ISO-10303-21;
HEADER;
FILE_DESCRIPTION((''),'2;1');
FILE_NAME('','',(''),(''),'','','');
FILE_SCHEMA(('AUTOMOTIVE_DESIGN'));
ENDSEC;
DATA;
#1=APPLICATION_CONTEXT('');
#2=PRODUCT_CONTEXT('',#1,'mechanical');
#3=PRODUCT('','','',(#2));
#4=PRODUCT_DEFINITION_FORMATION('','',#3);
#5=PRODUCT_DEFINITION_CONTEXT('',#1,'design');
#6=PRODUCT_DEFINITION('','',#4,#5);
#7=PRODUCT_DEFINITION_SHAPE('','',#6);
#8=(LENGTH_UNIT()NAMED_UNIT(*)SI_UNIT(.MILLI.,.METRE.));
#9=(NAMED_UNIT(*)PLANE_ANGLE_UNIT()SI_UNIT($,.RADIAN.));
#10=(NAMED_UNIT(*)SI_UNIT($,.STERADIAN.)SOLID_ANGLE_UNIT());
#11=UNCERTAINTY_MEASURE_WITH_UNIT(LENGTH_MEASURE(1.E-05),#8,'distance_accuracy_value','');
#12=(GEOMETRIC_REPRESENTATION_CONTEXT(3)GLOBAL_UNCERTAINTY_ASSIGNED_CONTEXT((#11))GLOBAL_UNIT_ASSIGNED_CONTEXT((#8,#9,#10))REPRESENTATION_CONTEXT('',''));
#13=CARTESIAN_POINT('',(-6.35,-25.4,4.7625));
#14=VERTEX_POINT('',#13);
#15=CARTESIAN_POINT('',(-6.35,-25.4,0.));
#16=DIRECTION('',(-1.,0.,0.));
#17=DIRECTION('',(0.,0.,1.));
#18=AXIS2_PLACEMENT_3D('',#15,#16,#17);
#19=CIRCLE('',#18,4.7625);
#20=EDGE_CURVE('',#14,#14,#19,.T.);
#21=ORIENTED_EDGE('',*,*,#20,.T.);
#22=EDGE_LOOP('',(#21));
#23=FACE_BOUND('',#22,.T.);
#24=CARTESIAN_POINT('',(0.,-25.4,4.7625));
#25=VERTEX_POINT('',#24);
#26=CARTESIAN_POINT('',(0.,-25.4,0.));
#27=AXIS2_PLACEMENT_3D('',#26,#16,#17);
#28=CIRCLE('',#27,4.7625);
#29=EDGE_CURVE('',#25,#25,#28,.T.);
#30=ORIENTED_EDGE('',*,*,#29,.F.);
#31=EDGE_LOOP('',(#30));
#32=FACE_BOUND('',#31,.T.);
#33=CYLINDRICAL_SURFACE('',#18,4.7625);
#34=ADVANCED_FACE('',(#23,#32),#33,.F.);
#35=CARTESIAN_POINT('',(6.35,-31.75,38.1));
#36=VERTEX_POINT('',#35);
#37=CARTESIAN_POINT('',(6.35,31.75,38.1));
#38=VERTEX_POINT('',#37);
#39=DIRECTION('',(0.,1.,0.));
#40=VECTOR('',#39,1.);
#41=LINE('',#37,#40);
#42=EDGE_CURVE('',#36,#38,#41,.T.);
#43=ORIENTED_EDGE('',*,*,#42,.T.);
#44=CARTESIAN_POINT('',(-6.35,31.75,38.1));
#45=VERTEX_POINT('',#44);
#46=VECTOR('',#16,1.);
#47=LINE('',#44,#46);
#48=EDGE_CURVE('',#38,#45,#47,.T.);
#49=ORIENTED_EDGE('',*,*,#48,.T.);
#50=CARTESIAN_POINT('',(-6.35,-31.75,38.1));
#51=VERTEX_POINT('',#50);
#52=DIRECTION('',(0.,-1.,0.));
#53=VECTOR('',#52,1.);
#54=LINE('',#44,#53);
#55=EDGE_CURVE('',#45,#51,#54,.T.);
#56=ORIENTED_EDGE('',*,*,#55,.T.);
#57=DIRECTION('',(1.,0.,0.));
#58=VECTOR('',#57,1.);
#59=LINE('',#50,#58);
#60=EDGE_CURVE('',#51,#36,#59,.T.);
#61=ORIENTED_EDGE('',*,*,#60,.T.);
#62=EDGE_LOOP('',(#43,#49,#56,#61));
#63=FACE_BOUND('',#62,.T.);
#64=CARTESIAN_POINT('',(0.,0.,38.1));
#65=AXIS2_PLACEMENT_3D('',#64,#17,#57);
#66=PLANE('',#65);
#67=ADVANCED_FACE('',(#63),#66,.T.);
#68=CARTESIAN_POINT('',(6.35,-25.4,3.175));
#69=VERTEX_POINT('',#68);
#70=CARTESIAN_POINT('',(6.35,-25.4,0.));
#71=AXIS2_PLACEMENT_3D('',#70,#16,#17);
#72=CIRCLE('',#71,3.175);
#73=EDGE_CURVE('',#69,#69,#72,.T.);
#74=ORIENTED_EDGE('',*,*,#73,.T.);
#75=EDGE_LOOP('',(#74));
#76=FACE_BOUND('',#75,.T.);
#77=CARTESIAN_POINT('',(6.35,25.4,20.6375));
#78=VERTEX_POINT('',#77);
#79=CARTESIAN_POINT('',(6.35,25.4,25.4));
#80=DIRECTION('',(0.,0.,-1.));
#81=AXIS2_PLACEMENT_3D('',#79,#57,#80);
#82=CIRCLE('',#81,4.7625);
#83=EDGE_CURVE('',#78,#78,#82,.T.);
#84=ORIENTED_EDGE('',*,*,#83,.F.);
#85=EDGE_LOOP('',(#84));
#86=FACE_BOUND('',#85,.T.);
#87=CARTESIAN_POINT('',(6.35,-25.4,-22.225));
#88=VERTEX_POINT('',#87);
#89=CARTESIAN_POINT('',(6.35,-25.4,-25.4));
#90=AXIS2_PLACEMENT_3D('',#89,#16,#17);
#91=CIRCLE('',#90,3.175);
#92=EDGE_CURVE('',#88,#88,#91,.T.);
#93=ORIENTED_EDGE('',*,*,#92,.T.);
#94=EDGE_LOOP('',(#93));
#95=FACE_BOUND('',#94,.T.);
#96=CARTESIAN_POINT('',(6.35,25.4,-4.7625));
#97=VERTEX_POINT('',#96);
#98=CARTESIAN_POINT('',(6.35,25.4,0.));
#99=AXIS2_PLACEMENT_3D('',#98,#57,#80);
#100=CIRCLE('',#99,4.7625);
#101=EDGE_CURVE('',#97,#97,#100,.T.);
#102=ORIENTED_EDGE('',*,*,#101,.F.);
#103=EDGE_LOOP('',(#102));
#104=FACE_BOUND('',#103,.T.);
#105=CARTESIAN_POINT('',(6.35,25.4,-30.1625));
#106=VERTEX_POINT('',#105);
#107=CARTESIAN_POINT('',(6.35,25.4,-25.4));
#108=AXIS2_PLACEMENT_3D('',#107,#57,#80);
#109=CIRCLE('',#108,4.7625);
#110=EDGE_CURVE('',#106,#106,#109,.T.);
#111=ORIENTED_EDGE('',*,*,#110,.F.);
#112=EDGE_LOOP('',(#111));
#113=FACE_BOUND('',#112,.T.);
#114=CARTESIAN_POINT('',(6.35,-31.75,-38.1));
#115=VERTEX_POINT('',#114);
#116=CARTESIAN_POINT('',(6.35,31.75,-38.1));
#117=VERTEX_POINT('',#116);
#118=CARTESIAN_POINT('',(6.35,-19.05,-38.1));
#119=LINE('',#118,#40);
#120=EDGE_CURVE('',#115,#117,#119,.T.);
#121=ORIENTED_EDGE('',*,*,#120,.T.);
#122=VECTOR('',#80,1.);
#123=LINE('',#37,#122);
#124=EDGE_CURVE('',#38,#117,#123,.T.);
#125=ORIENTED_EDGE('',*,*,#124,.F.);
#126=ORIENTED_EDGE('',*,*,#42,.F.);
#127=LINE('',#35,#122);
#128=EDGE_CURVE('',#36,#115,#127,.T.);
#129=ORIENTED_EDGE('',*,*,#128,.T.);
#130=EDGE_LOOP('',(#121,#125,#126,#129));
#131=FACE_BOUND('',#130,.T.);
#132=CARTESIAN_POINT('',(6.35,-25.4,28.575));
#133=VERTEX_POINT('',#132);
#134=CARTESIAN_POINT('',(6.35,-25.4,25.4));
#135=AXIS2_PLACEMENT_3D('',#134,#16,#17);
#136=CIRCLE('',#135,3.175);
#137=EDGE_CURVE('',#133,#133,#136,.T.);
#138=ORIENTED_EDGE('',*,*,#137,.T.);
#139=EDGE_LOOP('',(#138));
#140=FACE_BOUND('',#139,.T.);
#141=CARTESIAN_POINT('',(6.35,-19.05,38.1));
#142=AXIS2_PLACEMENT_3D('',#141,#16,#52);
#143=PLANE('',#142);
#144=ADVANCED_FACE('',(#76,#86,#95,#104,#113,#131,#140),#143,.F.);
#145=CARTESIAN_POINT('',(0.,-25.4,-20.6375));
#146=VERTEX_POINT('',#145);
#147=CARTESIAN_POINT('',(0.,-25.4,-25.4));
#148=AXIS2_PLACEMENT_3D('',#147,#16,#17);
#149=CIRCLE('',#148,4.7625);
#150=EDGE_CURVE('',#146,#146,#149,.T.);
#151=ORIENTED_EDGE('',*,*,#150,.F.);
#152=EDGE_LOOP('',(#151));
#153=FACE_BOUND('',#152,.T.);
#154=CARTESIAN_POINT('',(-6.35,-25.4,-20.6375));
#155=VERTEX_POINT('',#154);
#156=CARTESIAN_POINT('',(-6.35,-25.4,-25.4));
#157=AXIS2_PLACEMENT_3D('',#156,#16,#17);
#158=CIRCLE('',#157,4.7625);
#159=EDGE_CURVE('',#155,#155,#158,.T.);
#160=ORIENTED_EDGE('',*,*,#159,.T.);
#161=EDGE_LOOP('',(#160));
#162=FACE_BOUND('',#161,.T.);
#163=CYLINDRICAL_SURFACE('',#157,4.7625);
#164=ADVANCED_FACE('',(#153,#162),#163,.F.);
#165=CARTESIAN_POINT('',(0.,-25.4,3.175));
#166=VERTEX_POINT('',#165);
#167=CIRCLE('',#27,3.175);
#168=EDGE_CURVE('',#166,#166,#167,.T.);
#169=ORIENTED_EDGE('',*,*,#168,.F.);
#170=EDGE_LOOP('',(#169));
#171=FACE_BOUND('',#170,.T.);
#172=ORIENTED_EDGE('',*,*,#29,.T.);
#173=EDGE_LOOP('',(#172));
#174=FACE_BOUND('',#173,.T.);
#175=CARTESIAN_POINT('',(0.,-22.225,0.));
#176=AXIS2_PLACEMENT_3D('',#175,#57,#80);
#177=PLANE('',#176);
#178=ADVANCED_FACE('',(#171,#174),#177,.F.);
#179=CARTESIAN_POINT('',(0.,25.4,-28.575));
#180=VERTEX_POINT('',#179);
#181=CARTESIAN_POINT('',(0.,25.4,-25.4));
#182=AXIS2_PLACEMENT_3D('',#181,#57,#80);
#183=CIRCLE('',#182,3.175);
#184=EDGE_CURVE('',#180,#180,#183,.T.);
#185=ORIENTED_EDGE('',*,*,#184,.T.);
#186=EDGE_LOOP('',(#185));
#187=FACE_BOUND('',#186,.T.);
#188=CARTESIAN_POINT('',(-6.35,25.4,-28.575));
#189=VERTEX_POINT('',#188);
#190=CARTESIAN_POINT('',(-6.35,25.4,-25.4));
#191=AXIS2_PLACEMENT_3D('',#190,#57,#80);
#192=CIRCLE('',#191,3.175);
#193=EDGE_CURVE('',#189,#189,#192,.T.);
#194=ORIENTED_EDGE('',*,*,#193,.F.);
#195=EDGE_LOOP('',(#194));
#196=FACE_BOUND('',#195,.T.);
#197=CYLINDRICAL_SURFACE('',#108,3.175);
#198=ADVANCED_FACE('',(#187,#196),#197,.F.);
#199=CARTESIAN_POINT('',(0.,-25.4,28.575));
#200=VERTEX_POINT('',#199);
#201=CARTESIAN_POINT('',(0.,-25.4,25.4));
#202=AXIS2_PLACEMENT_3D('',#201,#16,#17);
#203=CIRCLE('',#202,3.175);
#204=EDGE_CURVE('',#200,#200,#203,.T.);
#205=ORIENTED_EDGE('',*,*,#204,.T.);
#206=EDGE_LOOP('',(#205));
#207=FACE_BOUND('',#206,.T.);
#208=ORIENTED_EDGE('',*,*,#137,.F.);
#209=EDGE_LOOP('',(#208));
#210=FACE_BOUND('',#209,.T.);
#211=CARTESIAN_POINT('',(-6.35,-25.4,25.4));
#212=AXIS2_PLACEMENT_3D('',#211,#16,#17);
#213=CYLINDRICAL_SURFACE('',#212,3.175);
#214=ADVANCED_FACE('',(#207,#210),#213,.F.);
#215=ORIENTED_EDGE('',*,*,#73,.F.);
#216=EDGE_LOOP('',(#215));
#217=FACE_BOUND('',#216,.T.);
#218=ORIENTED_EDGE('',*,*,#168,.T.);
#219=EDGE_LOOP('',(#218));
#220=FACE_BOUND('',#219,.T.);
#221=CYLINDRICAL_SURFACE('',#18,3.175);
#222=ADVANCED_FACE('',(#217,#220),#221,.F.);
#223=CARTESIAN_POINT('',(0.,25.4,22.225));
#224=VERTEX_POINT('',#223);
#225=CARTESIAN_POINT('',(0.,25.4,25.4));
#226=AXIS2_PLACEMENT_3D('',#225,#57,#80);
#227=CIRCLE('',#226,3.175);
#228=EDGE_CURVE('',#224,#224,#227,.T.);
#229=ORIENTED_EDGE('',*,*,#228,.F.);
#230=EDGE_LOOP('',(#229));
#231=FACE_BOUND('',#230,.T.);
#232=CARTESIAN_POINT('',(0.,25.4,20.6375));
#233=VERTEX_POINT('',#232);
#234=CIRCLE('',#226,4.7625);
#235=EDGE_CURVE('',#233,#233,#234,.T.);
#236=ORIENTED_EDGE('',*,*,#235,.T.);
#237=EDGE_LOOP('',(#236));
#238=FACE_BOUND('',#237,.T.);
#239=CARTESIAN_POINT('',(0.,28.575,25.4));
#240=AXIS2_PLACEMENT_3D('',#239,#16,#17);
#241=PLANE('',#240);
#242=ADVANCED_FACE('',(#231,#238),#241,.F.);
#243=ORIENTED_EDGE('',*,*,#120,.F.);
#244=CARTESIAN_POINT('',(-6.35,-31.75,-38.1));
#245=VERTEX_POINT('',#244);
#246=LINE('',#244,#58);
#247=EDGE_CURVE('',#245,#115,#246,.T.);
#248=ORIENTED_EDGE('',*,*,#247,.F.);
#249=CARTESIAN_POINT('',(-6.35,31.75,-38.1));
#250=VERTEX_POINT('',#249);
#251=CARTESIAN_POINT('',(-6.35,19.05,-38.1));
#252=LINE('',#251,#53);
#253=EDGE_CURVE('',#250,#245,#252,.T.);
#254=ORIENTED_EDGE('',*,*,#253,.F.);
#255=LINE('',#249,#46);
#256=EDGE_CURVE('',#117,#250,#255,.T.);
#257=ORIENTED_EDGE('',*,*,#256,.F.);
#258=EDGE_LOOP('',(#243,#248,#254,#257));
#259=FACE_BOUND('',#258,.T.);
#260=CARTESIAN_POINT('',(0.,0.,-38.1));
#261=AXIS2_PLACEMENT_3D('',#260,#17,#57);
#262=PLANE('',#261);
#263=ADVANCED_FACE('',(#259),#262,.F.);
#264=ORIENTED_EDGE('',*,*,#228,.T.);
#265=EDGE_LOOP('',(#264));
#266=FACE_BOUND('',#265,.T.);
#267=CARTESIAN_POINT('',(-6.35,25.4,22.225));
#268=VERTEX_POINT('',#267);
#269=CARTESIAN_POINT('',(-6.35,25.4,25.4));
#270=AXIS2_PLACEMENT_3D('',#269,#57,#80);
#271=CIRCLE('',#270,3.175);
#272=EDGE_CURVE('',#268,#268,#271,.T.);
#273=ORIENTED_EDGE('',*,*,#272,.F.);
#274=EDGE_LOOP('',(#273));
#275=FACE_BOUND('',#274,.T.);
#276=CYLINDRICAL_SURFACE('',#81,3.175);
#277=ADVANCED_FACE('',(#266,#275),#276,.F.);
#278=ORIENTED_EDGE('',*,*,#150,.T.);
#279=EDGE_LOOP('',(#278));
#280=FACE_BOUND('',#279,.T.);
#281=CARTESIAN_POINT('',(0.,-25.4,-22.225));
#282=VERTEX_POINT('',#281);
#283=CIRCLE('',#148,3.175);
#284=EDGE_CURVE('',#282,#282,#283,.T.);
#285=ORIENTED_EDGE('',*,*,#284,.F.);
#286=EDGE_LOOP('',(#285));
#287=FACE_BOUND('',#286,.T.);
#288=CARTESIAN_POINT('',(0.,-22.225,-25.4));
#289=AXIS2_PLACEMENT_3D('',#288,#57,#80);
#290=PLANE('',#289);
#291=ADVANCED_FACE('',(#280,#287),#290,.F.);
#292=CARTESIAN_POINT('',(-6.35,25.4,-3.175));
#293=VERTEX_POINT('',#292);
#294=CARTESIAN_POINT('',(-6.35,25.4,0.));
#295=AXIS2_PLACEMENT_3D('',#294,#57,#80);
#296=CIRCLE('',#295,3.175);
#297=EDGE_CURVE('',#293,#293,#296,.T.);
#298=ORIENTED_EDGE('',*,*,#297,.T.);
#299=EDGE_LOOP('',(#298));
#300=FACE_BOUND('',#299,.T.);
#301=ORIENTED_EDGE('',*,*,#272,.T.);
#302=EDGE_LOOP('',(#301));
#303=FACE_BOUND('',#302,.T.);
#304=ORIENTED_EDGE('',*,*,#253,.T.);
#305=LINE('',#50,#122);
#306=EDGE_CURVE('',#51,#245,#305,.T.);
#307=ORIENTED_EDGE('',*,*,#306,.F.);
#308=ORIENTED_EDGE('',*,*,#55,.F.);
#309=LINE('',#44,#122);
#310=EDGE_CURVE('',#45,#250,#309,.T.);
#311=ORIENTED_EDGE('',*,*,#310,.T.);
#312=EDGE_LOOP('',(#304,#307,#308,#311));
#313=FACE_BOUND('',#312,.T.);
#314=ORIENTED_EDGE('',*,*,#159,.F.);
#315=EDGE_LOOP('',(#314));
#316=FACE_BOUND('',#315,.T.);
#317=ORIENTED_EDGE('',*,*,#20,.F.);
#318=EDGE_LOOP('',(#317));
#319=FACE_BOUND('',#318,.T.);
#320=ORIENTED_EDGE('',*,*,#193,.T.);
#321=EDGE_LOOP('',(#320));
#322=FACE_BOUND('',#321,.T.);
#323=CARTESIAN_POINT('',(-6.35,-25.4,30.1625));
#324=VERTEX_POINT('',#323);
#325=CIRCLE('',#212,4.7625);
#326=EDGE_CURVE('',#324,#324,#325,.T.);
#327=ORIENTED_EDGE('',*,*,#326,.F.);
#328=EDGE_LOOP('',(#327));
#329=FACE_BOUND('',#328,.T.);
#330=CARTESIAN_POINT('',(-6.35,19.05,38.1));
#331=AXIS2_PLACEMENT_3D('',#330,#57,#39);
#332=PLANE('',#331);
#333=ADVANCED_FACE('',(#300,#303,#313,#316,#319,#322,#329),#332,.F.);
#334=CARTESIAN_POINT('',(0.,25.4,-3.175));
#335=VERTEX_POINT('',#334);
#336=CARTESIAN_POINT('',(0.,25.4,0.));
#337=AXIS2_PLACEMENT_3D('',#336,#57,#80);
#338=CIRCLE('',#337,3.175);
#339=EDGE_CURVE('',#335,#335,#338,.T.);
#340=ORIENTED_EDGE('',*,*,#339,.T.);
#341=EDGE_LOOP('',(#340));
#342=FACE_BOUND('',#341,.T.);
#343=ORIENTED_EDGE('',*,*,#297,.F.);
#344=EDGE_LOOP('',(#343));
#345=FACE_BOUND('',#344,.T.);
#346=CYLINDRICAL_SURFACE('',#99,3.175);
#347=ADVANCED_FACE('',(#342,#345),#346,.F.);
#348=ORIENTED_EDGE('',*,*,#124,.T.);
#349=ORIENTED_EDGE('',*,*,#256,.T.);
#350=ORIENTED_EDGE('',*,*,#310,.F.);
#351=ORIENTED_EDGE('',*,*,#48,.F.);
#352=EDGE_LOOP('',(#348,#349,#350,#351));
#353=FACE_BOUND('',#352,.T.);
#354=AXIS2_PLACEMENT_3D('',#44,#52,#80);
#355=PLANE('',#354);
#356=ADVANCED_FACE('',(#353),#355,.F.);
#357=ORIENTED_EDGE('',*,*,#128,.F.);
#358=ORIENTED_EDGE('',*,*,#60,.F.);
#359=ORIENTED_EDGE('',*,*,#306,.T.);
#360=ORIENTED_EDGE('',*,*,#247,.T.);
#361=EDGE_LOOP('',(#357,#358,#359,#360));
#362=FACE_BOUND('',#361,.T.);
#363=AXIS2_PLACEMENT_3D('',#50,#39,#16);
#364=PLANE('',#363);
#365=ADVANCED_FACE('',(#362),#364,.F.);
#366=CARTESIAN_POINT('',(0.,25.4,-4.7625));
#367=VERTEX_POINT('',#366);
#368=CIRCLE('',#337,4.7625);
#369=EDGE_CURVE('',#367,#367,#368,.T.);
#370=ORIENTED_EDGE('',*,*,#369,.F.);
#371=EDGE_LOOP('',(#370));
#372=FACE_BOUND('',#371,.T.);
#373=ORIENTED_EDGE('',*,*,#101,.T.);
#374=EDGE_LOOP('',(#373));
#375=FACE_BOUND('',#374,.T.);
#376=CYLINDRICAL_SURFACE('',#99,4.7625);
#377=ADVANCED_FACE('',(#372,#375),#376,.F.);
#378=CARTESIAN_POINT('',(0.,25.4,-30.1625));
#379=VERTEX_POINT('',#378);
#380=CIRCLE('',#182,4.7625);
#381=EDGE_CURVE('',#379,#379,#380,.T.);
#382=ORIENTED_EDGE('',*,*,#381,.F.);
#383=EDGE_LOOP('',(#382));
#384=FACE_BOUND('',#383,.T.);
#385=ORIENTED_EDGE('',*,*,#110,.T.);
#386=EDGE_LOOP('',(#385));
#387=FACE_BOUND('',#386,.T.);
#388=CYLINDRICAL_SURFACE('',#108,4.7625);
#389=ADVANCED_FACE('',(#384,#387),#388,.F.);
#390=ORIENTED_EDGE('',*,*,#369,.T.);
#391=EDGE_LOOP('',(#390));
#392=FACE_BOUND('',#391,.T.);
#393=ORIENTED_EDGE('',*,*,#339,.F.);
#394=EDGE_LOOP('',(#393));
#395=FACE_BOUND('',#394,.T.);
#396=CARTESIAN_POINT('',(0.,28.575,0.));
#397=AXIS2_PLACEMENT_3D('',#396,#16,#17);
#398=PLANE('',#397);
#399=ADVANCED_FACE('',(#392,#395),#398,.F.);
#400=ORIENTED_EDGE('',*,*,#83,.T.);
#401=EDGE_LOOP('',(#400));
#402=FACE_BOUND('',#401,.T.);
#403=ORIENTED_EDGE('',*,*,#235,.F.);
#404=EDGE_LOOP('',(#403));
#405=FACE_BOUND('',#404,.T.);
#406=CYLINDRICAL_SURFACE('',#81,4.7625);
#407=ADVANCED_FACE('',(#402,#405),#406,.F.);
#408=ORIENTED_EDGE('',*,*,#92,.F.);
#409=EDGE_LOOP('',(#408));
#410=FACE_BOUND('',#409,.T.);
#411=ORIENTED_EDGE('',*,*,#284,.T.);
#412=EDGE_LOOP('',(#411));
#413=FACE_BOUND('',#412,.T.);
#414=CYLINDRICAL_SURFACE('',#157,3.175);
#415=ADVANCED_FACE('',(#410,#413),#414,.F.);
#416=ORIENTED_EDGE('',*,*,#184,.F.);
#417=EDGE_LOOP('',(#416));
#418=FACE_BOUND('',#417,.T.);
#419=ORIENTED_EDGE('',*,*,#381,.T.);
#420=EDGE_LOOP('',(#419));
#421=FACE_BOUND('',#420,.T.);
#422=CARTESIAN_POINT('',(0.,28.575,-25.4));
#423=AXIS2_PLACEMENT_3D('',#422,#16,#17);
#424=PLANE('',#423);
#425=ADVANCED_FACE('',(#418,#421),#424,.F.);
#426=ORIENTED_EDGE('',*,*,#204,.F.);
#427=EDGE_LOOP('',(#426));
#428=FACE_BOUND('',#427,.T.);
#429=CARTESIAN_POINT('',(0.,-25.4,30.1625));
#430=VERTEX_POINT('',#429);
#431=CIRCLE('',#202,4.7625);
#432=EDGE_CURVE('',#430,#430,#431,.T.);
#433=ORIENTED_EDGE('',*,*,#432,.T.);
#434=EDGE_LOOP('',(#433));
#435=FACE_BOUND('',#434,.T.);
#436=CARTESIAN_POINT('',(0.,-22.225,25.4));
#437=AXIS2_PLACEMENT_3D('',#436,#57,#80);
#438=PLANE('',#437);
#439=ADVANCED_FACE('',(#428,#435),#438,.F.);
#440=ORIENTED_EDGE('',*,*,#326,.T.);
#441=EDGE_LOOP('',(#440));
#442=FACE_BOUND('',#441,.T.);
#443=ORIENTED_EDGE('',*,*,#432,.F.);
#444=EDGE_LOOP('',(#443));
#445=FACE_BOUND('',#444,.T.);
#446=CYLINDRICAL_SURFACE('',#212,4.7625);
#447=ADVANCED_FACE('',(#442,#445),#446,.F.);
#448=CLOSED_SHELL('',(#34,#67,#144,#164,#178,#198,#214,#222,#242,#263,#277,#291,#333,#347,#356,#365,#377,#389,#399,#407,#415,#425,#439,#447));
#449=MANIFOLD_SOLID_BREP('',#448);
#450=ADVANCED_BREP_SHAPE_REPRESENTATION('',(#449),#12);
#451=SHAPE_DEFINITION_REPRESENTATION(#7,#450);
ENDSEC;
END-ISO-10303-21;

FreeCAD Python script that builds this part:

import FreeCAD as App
import Part
import Sketcher

V = App.Vector
Q = App.Units.Quantity

doc = App.newDocument("Part")
body = doc.addObject("PartDesign::Body", "Body")

# Sketch on XY plane
sketch1 = doc.addObject("Sketcher::SketchObject", "Sketch")
body.addObject(sketch1)
sketch1.AttachmentSupport = (doc.XY_Plane, [""])
sketch1.MapMode = "FlatFace"
sketch1.addGeometry([
    Part.LineSegment(V(6, 32, 0), V(-6, 32, 0)),
    Part.LineSegment(V(-6, 32, 0), V(-6, -32, 0)),
    Part.LineSegment(V(-6, -32, 0), V(6, -32, 0)),
    Part.LineSegment(V(6, -32, 0), V(6, 32, 0)),
], False)
sketch1.addConstraint([
    Sketcher.Constraint("Coincident", 0, 2, 1, 1),
    Sketcher.Constraint("Coincident", 1, 2, 2, 1),
    Sketcher.Constraint("Coincident", 2, 2, 3, 1),
    Sketcher.Constraint("Coincident", 3, 2, 0, 1),
    Sketcher.Constraint("Horizontal", 0),
    Sketcher.Constraint("Vertical", 1),
    Sketcher.Constraint("Horizontal", 2),
    Sketcher.Constraint("Vertical", 3),
    Sketcher.Constraint("Symmetric", 0, 2, 2, 2, -1, 1),
    Sketcher.Constraint("DistanceX", 0, 2, 0, 1, Q("0.5 in")),
    Sketcher.Constraint("DistanceY", 1, 2, 1, 1, Q("2.5 in")),
])
pad1 = doc.addObject("PartDesign::Pad", "Pad")
body.addObject(pad1)
pad1.Profile = sketch1
pad1.Length = Q("3 in")
pad1.Midplane = True

# Sketch on YZ plane
sketch2 = doc.addObject("Sketcher::SketchObject", "Sketch001")
body.addObject(sketch2)
sketch2.AttachmentSupport = (doc.YZ_Plane, [""])
sketch2.MapMode = "FlatFace"
sketch2.AttachmentOffset = App.Placement(V(0, 0, -0.25 * 25.4), App.Rotation())
sketch2.addGeometry([
    Part.Circle(V(-25.4, -25.4, 0), V(0, 0, 1), 3.2),
    Part.Circle(V(-25.4, 0, 0), V(0, 0, 1), 3.2),
    Part.Circle(V(-25.4, 25.4, 0), V(0, 0, 1), 3.2),
], False)
sketch2.addConstraint([
    Sketcher.Constraint("Equal", 0, 1),
    Sketcher.Constraint("Equal", 1, 2),
    Sketcher.Constraint("Symmetric", 0, 3, 2, 3, -1),
    Sketcher.Constraint("PointOnObject", 1, 3, -1),
    Sketcher.Constraint("Vertical", 0, 3, 1, 3),
    Sketcher.Constraint("Diameter", 0, Q("0.25 in")),
    Sketcher.Constraint("DistanceX", 0, 3, -1, 1, Q("1 in")),
    Sketcher.Constraint("DistanceY", 0, 3, -1, 1, Q("1 in")),
])
doc.recompute()
hole = doc.addObject("PartDesign::Hole", "Hole")
body.addObject(hole)
hole.Profile = sketch2
hole.ThreadType = "None"
hole.Diameter = Q("0.25 in")
hole.DepthType = "ThroughAll"
hole.HoleCutType = "Counterbore"
hole.HoleCutDiameter = Q("0.375 in")
hole.HoleCutDepth = Q("0.25 in")
hole.Reversed = True

# Sketch on YZ plane
sketch3 = doc.addObject("Sketcher::SketchObject", "Sketch002")
body.addObject(sketch3)
sketch3.AttachmentSupport = (doc.YZ_Plane, [""])
sketch3.MapMode = "FlatFace"
sketch3.AttachmentOffset = App.Placement(V(0, 0, 0.25 * 25.4), App.Rotation())
sketch3.addGeometry([
    Part.Circle(V(25.4, 25.4, 0), V(0, 0, 1), 3.2),
    Part.Circle(V(25.4, 0, 0), V(0, 0, 1), 3.2),
    Part.Circle(V(25.4, -25.4, 0), V(0, 0, 1), 3.2),
], False)
sketch3.addConstraint([
    Sketcher.Constraint("Equal", 0, 1),
    Sketcher.Constraint("Equal", 1, 2),
    Sketcher.Constraint("Symmetric", 0, 3, 2, 3, -1),
    Sketcher.Constraint("PointOnObject", 1, 3, -1),
    Sketcher.Constraint("Vertical", 0, 3, 1, 3),
    Sketcher.Constraint("Diameter", 0, Q("0.25 in")),
    Sketcher.Constraint("DistanceX", -1, 1, 0, 3, Q("1 in")),
    Sketcher.Constraint("DistanceY", -1, 1, 0, 3, Q("1 in")),
])
doc.recompute()
hole2 = doc.addObject("PartDesign::Hole", "Hole001")
body.addObject(hole2)
hole2.Profile = sketch3
hole2.ThreadType = "None"
hole2.Diameter = Q("0.25 in")
hole2.DepthType = "ThroughAll"
hole2.HoleCutType = "Counterbore"
hole2.HoleCutDiameter = Q("0.375 in")
hole2.HoleCutDepth = Q("0.25 in")

doc.recompute()
